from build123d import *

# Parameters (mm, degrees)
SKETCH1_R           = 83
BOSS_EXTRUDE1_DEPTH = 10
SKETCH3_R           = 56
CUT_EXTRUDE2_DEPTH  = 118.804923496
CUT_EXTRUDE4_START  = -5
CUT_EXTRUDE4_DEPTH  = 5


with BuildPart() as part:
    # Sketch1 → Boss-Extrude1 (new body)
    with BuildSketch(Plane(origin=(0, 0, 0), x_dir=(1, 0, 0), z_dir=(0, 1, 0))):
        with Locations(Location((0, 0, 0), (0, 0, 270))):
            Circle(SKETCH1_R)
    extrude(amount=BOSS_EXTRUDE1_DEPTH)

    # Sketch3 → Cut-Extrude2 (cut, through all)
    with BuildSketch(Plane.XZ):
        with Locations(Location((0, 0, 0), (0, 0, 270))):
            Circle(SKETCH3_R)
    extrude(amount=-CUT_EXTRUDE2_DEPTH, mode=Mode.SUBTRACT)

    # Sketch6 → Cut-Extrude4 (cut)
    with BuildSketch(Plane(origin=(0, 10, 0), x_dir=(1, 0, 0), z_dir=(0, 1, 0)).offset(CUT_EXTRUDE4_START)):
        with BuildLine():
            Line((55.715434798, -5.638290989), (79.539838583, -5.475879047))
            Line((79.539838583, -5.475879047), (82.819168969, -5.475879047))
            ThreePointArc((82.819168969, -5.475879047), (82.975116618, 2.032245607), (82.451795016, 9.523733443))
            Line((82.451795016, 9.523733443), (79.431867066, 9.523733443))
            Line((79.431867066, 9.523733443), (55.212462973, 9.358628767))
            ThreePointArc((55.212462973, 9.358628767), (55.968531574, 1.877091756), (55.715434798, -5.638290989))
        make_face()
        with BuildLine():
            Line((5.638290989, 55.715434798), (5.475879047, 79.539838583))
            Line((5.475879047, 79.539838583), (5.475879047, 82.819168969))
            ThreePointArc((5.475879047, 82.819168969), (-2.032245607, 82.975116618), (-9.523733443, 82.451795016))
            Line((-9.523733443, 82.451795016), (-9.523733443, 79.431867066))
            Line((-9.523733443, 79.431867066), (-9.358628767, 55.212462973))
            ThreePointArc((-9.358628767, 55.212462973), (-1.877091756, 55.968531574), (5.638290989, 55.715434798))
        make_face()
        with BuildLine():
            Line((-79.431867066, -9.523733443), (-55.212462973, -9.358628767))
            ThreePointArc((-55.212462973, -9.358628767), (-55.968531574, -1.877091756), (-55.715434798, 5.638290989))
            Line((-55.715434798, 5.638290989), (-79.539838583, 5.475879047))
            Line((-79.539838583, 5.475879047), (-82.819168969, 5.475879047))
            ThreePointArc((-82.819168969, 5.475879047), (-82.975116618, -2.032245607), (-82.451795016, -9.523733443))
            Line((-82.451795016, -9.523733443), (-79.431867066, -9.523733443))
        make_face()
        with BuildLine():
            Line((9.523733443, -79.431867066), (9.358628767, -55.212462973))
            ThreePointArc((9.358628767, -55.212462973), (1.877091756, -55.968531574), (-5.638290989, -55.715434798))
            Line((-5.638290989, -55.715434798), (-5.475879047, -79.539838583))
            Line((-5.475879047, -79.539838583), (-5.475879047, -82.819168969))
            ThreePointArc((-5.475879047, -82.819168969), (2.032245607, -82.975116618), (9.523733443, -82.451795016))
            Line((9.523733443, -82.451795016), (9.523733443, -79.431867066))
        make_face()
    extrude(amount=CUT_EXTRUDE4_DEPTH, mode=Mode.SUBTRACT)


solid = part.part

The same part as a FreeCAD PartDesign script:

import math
import FreeCAD as App
import Part
import Sketcher

V = App.Vector
Q = App.Units.Quantity

doc = App.newDocument("Part")
body = doc.addObject("PartDesign::Body", "Body")

sketch1 = body.newObject("Sketcher::SketchObject", "Sketch")
sketch1.AttachmentSupport = (doc.getObject("XZ_Plane"), [""])
sketch1.MapMode = "FlatFace"
sketch1.addGeometry(Part.Circle(V(0, 0, 0), V(0, 0, 1), 83), False)
sketch1.addConstraint([
    Sketcher.Constraint("Coincident", 0, 3, -1, 1),
    Sketcher.Constraint("Diameter", 0, Q("166 mm")),
])
pad1 = body.newObject("PartDesign::Pad", "Pad")
pad1.Profile = sketch1
pad1.Length = 10
pad1.Reversed = True

sketch2 = body.newObject("Sketcher::SketchObject", "Sketch001")
sketch2.AttachmentSupport = (doc.getObject("XZ_Plane"), [""])
sketch2.MapMode = "FlatFace"
sketch2.addGeometry(Part.Circle(V(0, 0, 0), V(0, 0, 1), 56), False)
sketch2.addConstraint([
    Sketcher.Constraint("Coincident", 0, 3, -1, 1),
    Sketcher.Constraint("Diameter", 0, Q("112 mm")),
])
pocket1 = body.newObject("PartDesign::Pocket", "Pocket")
pocket1.Profile = sketch2
pocket1.Type = "ThroughAll"

sketch3 = body.newObject("Sketcher::SketchObject", "Sketch002")
sketch3.AttachmentSupport = (doc.getObject("XZ_Plane"), [""])
sketch3.MapMode = "FlatFace"
sketch3.AttachmentOffset = App.Placement(V(0, 0, -5), App.Rotation())
sketch3.addGeometry([
    Part.LineSegment(V(55.7, 5.6, 0), V(79.5, 5.5, 0)),
    Part.LineSegment(V(79.5, 5.5, 0), V(82.8, 5.5, 0)),
    Part.ArcOfCircle(Part.Circle(V(0, 0, 0), V(0, 0, 1), 83), math.radians(-6.59), math.radians(3.78)),
    Part.LineSegment(V(82.5, -9.5, 0), V(79.4, -9.5, 0)),
    Part.LineSegment(V(79.4, -9.5, 0), V(55.2, -9.4, 0)),
    Part.ArcOfCircle(Part.Circle(V(0, 0, 0), V(0, 0, 1), 56), math.radians(-9.62), math.radians(5.78)),
    Part.LineSegment(V(5.6, -55.7, 0), V(5.5, -79.5, 0)),
    Part.LineSegment(V(5.5, -79.5, 0), V(5.5, -82.8, 0)),
    Part.ArcOfCircle(Part.Circle(V(0, 0, 0), V(0, 0, 1), 83), math.radians(-96.59), math.radians(-86.22)),
    Part.LineSegment(V(-9.5, -82.5, 0), V(-9.5, -79.4, 0)),
    Part.LineSegment(V(-9.5, -79.4, 0), V(-9.4, -55.2, 0)),
    Part.ArcOfCircle(Part.Circle(V(0, 0, 0), V(0, 0, 1), 56), math.radians(-99.62), math.radians(-84.22)),
    Part.LineSegment(V(-79.4, 9.5, 0), V(-55.2, 9.4, 0)),
    Part.ArcOfCircle(Part.Circle(V(0, 0, 0), V(0, 0, 1), 56), math.radians(170.38), math.radians(185.78)),
    Part.LineSegment(V(-55.7, -5.6, 0), V(-79.5, -5.5, 0)),
    Part.LineSegment(V(-79.5, -5.5, 0), V(-82.8, -5.5, 0)),
    Part.ArcOfCircle(Part.Circle(V(0, 0, 0), V(0, 0, 1), 83), math.radians(173.41), math.radians(183.78)),
    Part.LineSegment(V(-82.5, 9.5, 0), V(-79.4, 9.5, 0)),
    Part.LineSegment(V(9.5, 79.4, 0), V(9.4, 55.2, 0)),
    Part.ArcOfCircle(Part.Circle(V(0, 0, 0), V(0, 0, 1), 56), math.radians(80.38), math.radians(95.78)),
    Part.LineSegment(V(-5.6, 55.7, 0), V(-5.5, 79.5, 0)),
    Part.LineSegment(V(-5.5, 79.5, 0), V(-5.5, 82.8, 0)),
    Part.ArcOfCircle(Part.Circle(V(0, 0, 0), V(0, 0, 1), 83), math.radians(83.41), math.radians(93.78)),
    Part.LineSegment(V(9.5, 82.5, 0), V(9.5, 79.4, 0)),
], False)
sketch3.addConstraint([
    Sketcher.Constraint("Coincident", 0, 2, 1, 1),
    Sketcher.Constraint("Coincident", 1, 2, 2, 2),
    Sketcher.Constraint("Coincident", 2, 1, 3, 1),
    Sketcher.Constraint("Coincident", 3, 2, 4, 1),
    Sketcher.Constraint("Coincident", 4, 2, 5, 1),
    Sketcher.Constraint("Coincident", 5, 2, 0, 1),
    Sketcher.Constraint("Coincident", 6, 2, 7, 1),
    Sketcher.Constraint("Coincident", 7, 2, 8, 2),
    Sketcher.Constraint("Coincident", 8, 1, 9, 1),
    Sketcher.Constraint("Coincident", 9, 2, 10, 1),
    Sketcher.Constraint("Coincident", 10, 2, 11, 1),
    Sketcher.Constraint("Coincident", 11, 2, 6, 1),
    Sketcher.Constraint("Coincident", 12, 2, 13, 1),
    Sketcher.Constraint("Coincident", 13, 2, 14, 1),
    Sketcher.Constraint("Coincident", 14, 2, 15, 1),
    Sketcher.Constraint("Coincident", 15, 2, 16, 2),
    Sketcher.Constraint("Coincident", 16, 1, 17, 1),
    Sketcher.Constraint("Coincident", 17, 2, 12, 1),
    Sketcher.Constraint("Coincident", 18, 2, 19, 1),
    Sketcher.Constraint("Coincident", 19, 2, 20, 1),
    Sketcher.Constraint("Coincident", 20, 2, 21, 1),
    Sketcher.Constraint("Coincident", 21, 2, 22, 2),
    Sketcher.Constraint("Coincident", 22, 1, 23, 1),
    Sketcher.Constraint("Coincident", 23, 2, 18, 1),
    Sketcher.Constraint("Horizontal", 1),
    Sketcher.Constraint("Horizontal", 3),
    Sketcher.Constraint("Vertical", 7),
    Sketcher.Constraint("Vertical", 9),
    Sketcher.Constraint("Horizontal", 15),
    Sketcher.Constraint("Horizontal", 17),
    Sketcher.Constraint("Vertical", 21),
    Sketcher.Constraint("Vertical", 23),
    Sketcher.Constraint("Coincident", 2, 3, -1, 1),
    Sketcher.Constraint("Coincident", 5, 3, -1, 1),
    Sketcher.Constraint("Coincident", 8, 3, -1, 1),
    Sketcher.Constraint("Coincident", 11, 3, -1, 1),
    Sketcher.Constraint("Coincident", 13, 3, -1, 1),
    Sketcher.Constraint("Coincident", 16, 3, -1, 1),
    Sketcher.Constraint("Coincident", 19, 3, -1, 1),
    Sketcher.Constraint("Coincident", 22, 3, -1, 1),
    Sketcher.Constraint("Equal", 2, 8),
    Sketcher.Constraint("Equal", 5, 11),
    Sketcher.Constraint("Equal", 11, 13),
    Sketcher.Constraint("Equal", 8, 16),
    Sketcher.Constraint("Equal", 13, 19),
    Sketcher.Constraint("Equal", 16, 22),
    Sketcher.Constraint("Symmetric", 0, 2, 14, 2, -1, 1),
    Sketcher.Constraint("Symmetric", 3, 2, 17, 2, -1, 1),
    Sketcher.Constraint("Symmetric", 6, 2, 20, 2, -1, 1),
    Sketcher.Constraint("Symmetric", 9, 2, 23, 2, -1, 1),
    Sketcher.Constraint("Parallel", 0, 4),
    Sketcher.Constraint("Perpendicular", 4, 6),
    Sketcher.Constraint("Parallel", 6, 10),
    Sketcher.Constraint("Perpendicular", 10, 12),
    Sketcher.Constraint("Parallel", 12, 14),
    Sketcher.Constraint("Perpendicular", 14, 18),
    Sketcher.Constraint("Parallel", 18, 20),
    Sketcher.Constraint("Equal", 15, 7),
    Sketcher.Constraint("Equal", 17, 9),
    Sketcher.Constraint("Equal", 0, 6),
    Sketcher.Constraint("Equal", 4, 10),
    Sketcher.Constraint("Radius", 2, Q("83 mm")),
    Sketcher.Constraint("Radius", 5, Q("56 mm")),
    Sketcher.Constraint("DistanceX", 1, 1, 1, 2, Q("3.27933 mm")),
    Sketcher.Constraint("DistanceX", 3, 2, 1, 2, Q("3.387302 mm")),
    Sketcher.Constraint("DistanceX", 3, 2, 3, 1, Q("3.019928 mm")),
    Sketcher.Constraint("DistanceX", -1, 1, 0, 2, Q("79.539839 mm")),
    Sketcher.Constraint("DistanceY", 4, 2, -1, 1, Q("9.358629 mm")),
])
pocket2 = body.newObject("PartDesign::Pocket", "Pocket001")
pocket2.Profile = sketch3
pocket2.Length = 5

doc.recompute()
